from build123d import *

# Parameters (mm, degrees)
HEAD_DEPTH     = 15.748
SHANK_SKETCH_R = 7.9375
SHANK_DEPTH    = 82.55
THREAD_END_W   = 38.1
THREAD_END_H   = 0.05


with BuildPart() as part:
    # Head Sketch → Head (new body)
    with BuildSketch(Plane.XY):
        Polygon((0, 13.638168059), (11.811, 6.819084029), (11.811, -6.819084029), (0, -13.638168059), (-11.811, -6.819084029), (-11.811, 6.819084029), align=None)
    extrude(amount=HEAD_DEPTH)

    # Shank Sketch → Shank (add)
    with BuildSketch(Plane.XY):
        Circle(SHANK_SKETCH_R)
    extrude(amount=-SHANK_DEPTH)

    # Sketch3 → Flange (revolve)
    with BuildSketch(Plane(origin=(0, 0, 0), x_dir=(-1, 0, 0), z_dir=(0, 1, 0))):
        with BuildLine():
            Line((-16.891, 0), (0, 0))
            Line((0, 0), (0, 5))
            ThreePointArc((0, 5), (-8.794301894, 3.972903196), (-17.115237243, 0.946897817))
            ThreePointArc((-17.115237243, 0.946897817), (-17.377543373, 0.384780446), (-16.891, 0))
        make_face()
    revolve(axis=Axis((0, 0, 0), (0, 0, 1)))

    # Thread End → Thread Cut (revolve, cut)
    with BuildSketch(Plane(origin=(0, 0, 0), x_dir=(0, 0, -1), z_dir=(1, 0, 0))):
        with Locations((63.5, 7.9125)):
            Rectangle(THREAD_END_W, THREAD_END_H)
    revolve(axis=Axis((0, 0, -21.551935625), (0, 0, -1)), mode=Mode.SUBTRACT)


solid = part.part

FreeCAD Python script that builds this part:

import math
import FreeCAD as App
import Part
import Sketcher
Q = App.Units.Quantity

doc = App.newDocument("Part")
body = doc.addObject("PartDesign::Body", "Body")

sketch1 = doc.addObject("Sketcher::SketchObject", "Sketch")
body.addObject(sketch1)
sketch1.AttachmentSupport = (doc.XY_Plane, [""])
sketch1.MapMode = "FlatFace"
sketch1.addGeometry([
    Part.LineSegment(App.Vector(12, 7, 0), App.Vector(0, 14, 0)),
    Part.LineSegment(App.Vector(0, 14, 0), App.Vector(-12, 7, 0)),
    Part.LineSegment(App.Vector(-12, 7, 0), App.Vector(-12, -7, 0)),
    Part.LineSegment(App.Vector(-12, -7, 0), App.Vector(0, -14, 0)),
    Part.LineSegment(App.Vector(0, -14, 0), App.Vector(12, -7, 0)),
    Part.LineSegment(App.Vector(12, -7, 0), App.Vector(12, 7, 0)),
], False)
sketch1.addConstraint([
    Sketcher.Constraint("Coincident", 0, 2, 1, 1),
    Sketcher.Constraint("Coincident", 1, 2, 2, 1),
    Sketcher.Constraint("Coincident", 2, 2, 3, 1),
    Sketcher.Constraint("Coincident", 3, 2, 4, 1),
    Sketcher.Constraint("Coincident", 4, 2, 5, 1),
    Sketcher.Constraint("Coincident", 5, 2, 0, 1),
    Sketcher.Constraint("Vertical", 2),
    Sketcher.Constraint("Vertical", 5),
    Sketcher.Constraint("Symmetric", 0, 2, 3, 2, -1, 1),
    Sketcher.Constraint("Symmetric", 1, 2, 4, 2, -1, 1),
    Sketcher.Constraint("PointOnObject", 0, 2, -2),
    Sketcher.Constraint("Parallel", 0, 3),
    Sketcher.Constraint("Horizontal", 2, 2, 4, 2),
    Sketcher.Constraint("Angle", 0, Q("150 deg")),
    Sketcher.Constraint("DistanceX", 2, 2, 4, 2, Q("0.93 in")),
    Sketcher.Constraint("DistanceY", 2, 2, 2, 1, 13.638168),
])
pad1 = doc.addObject("PartDesign::Pad", "Pad")
body.addObject(pad1)
pad1.Profile = sketch1
pad1.Length = Q("0.62 in")

sketch2 = doc.addObject("Sketcher::SketchObject", "Sketch001")
body.addObject(sketch2)
sketch2.AttachmentSupport = (doc.XY_Plane, [""])
sketch2.MapMode = "FlatFace"
sketch2.addGeometry(Part.Circle(App.Vector(0, 0, 0), App.Vector(0, 0, 1), 8), False)
sketch2.addConstraint([
    Sketcher.Constraint("Coincident", 0, 3, -1, 1),
    Sketcher.Constraint("Diameter", 0, Q("0.625 in")),
])
pad2 = doc.addObject("PartDesign::Pad", "Pad001")
body.addObject(pad2)
pad2.Profile = sketch2
pad2.Length = Q("3.25 in")
pad2.Reversed = True

sketch3 = doc.addObject("Sketcher::SketchObject", "Sketch002")
body.addObject(sketch3)
sketch3.AttachmentSupport = (doc.XZ_Plane, [""])
sketch3.MapMode = "FlatFace"
sketch3.addGeometry([
    Part.LineSegment(App.Vector(16.9, 0, 0), App.Vector(0, 0, 0)),
    Part.LineSegment(App.Vector(0, 0, 0), App.Vector(0, 5, 0)),
    Part.ArcOfCircle(Part.Circle(App.Vector(0, -33.2, 0), App.Vector(0, 0, 1), 38.2), math.radians(63), math.radians(90)),
    Part.ArcOfCircle(Part.Circle(App.Vector(16.9, 0.5, 0), App.Vector(0, 0, 1), 0.5), math.radians(-90), math.radians(63)),
], False)
sketch3.addConstraint([
    Sketcher.Constraint("Coincident", 0, 2, 1, 1),
    Sketcher.Constraint("Coincident", 1, 2, 2, 2),
    Sketcher.Constraint("Tangent", 2, 1, 3, 2),
    Sketcher.Constraint("Tangent", 3, 1, 0, 1),
    Sketcher.Constraint("Horizontal", 0),
    Sketcher.Constraint("Vertical", 1),
    Sketcher.Constraint("Coincident", 0, 2, -1, 1),
    Sketcher.Constraint("PointOnObject", 2, 3, -2),
    Sketcher.Constraint("DistanceX", 0, 2, 0, 1, Q("0.665 in")),
    Sketcher.Constraint("Radius", 3, 0.5),
    Sketcher.Constraint("DistanceY", 1, 1, 1, 2, 5.0),
])
revolution = doc.addObject("PartDesign::Revolution", "Revolution")
body.addObject(revolution)
revolution.Profile = sketch3
revolution.ReferenceAxis = (sketch3, ["V_Axis"])
revolution.Angle = 360

sketch4 = doc.addObject("Sketcher::SketchObject", "Sketch003")
body.addObject(sketch4)
sketch4.AttachmentSupport = (doc.YZ_Plane, [""])
sketch4.MapMode = "FlatFace"
sketch4.addGeometry([
    Part.LineSegment(App.Vector(7.938, -44.45, 0), App.Vector(7.888, -44.45, 0)),
    Part.LineSegment(App.Vector(7.888, -44.45, 0), App.Vector(7.888, -82.55, 0)),
    Part.LineSegment(App.Vector(7.888, -82.55, 0), App.Vector(7.938, -82.55, 0)),
    Part.LineSegment(App.Vector(7.938, -82.55, 0), App.Vector(7.938, -44.45, 0)),
], False)
sketch4.addConstraint([
    Sketcher.Constraint("Coincident", 0, 2, 1, 1),
    Sketcher.Constraint("Coincident", 1, 2, 2, 1),
    Sketcher.Constraint("Coincident", 2, 2, 3, 1),
    Sketcher.Constraint("Coincident", 3, 2, 0, 1),
    Sketcher.Constraint("Horizontal", 0),
    Sketcher.Constraint("Vertical", 1),
    Sketcher.Constraint("Horizontal", 2),
    Sketcher.Constraint("Vertical", 3),
    Sketcher.Constraint("DistanceY", 1, 2, 1, 1, Q("1.5 in")),
    Sketcher.Constraint("DistanceY", 0, 2, -1, 1, Q("1.75 in")),
    Sketcher.Constraint("DistanceX", -1, 1, 2, 2, Q("0.3125 in")),
    Sketcher.Constraint("DistanceX", 0, 2, 0, 1, 0.05),
])
groove = doc.addObject("PartDesign::Groove", "Groove")
body.addObject(groove)
groove.Profile = sketch4
groove.ReferenceAxis = (sketch4, ["V_Axis"])
groove.Angle = 360

doc.recompute()
